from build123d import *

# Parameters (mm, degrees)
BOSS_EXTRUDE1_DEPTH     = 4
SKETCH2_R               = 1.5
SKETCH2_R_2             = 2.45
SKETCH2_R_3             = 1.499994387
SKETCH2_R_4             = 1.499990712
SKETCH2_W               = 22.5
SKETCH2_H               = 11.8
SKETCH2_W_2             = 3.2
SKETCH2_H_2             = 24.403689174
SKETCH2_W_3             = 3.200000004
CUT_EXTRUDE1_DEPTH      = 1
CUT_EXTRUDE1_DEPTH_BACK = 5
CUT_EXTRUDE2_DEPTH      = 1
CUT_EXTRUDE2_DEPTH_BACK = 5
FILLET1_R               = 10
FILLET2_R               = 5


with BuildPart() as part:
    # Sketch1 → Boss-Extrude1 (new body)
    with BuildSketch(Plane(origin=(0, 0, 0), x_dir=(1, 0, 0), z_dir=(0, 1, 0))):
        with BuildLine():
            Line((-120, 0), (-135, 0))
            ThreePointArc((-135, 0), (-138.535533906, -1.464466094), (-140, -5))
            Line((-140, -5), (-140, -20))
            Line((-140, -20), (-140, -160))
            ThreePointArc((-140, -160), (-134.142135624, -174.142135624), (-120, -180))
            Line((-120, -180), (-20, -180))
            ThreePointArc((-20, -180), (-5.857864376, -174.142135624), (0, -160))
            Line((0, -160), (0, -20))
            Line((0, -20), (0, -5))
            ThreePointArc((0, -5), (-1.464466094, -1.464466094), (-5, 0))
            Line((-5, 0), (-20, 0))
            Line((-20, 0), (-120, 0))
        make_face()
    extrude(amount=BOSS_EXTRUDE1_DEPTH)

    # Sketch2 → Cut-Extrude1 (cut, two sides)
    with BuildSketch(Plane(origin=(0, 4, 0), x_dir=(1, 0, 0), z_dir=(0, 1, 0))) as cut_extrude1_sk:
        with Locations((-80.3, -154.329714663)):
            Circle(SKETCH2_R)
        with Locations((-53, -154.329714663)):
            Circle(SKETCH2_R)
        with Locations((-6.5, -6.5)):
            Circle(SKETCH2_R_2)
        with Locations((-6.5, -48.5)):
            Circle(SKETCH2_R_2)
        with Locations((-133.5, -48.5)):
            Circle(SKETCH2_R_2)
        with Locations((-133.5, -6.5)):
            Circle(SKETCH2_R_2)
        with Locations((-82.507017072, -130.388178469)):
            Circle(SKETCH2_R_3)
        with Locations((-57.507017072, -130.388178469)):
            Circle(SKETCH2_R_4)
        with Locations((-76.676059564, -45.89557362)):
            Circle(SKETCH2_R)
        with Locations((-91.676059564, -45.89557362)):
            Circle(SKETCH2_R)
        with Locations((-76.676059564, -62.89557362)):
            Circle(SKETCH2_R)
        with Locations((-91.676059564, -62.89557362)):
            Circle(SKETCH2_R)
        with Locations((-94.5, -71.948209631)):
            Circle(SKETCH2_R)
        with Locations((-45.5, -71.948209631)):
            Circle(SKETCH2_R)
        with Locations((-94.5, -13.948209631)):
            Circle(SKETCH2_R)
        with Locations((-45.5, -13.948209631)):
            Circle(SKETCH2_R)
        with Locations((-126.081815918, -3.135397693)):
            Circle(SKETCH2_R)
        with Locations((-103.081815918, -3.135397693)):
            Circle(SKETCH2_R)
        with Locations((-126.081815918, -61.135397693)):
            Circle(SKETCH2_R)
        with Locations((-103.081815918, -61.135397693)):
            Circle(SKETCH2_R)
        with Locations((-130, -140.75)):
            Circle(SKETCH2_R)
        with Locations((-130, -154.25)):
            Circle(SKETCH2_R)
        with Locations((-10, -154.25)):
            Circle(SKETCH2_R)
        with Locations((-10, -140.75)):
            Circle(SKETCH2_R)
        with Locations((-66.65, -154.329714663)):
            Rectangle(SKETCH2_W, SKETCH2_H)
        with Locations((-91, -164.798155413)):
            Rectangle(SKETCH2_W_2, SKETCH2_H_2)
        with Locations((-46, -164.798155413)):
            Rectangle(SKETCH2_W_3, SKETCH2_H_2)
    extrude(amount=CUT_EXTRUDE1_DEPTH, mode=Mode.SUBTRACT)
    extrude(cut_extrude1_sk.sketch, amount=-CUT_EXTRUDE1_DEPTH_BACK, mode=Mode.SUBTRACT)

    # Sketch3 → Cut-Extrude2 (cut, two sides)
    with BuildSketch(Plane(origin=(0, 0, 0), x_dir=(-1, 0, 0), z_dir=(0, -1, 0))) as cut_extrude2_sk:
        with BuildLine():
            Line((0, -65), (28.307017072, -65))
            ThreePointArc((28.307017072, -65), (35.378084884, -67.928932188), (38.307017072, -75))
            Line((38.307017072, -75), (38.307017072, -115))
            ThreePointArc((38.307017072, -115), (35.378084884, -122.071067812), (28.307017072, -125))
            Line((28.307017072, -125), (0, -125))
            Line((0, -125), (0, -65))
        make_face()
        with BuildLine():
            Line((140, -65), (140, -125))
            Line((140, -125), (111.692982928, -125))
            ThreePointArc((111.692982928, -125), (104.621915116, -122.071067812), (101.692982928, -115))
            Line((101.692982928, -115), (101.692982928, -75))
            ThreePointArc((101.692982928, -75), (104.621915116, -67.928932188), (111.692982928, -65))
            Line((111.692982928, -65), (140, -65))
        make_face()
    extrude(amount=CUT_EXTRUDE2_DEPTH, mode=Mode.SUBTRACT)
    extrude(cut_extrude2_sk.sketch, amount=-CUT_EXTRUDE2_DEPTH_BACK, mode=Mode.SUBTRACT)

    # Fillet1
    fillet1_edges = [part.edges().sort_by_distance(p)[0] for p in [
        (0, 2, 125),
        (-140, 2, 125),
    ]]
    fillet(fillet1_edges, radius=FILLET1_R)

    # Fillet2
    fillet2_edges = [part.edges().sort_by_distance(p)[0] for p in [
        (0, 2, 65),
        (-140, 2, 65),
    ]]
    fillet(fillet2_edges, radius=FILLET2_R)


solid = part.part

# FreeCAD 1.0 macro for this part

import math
import FreeCAD as App
import Part
import Sketcher
from FreeCAD import Vector


def edges_at(feature, points):
    """Names of the edges that pass closest to the given points."""
    edges = feature.Shape.Edges
    near = lambda p: min(range(len(edges)), key=lambda i: edges[i].distToShape(Part.Vertex(*p))[0])
    return sorted({f"Edge{near(p) + 1}" for p in points})


def add_polygon(sketch, points):
    """Adds a closed chain of lines whose ends are joined by coincident constraints."""
    first, n = sketch.GeometryCount, len(points)
    for a, b in zip(points, points[1:] + points[:1]):
        sketch.addGeometry(Part.LineSegment(App.Vector(*a, 0), App.Vector(*b, 0)), False)
    for i in range(n):
        sketch.addConstraint(Sketcher.Constraint("Coincident", first + i, 2, first + (i + 1) % n, 1))

doc = App.newDocument("Part")
body = doc.addObject("PartDesign::Body", "Body")

# Sketch on XZ plane
sketch1 = body.newObject("Sketcher::SketchObject", "Sketch")
sketch1.AttachmentSupport = (doc.getObject("XZ_Plane"), [""])
sketch1.MapMode = "FlatFace"
sketch1.addGeometry(Part.ArcOfCircle(Part.Circle(Vector(-135, 5, 0), Vector(0, 0, 1), 5), math.radians(180), math.radians(270)), False)
sketch1.addGeometry(Part.LineSegment(Vector(-140, 5, 0), Vector(-140, 160, 0)), False)
sketch1.addGeometry(Part.ArcOfCircle(Part.Circle(Vector(-120, 160, 0), Vector(0, 0, 1), 20), math.radians(90), math.radians(180)), False)
sketch1.addGeometry(Part.LineSegment(Vector(-120, 180, 0), Vector(-20, 180, 0)), False)
sketch1.addGeometry(Part.ArcOfCircle(Part.Circle(Vector(-20, 160, 0), Vector(0, 0, 1), 20), math.radians(0), math.radians(90)), False)
sketch1.addGeometry(Part.LineSegment(Vector(0, 160, 0), Vector(0, 5, 0)), False)
sketch1.addGeometry(Part.ArcOfCircle(Part.Circle(Vector(-5, 5, 0), Vector(0, 0, 1), 5), math.radians(-90), math.radians(0)), False)
sketch1.addGeometry(Part.LineSegment(Vector(-5, 0, 0), Vector(-135, 0, 0)), False)
sketch1.addConstraint(Sketcher.Constraint("Tangent", 0, 1, 1, 1))
sketch1.addConstraint(Sketcher.Constraint("Tangent", 1, 2, 2, 2))
sketch1.addConstraint(Sketcher.Constraint("Tangent", 2, 1, 3, 1))
sketch1.addConstraint(Sketcher.Constraint("Tangent", 3, 2, 4, 2))
sketch1.addConstraint(Sketcher.Constraint("Tangent", 4, 1, 5, 1))
sketch1.addConstraint(Sketcher.Constraint("Tangent", 5, 2, 6, 2))
sketch1.addConstraint(Sketcher.Constraint("Tangent", 6, 1, 7, 1))
sketch1.addConstraint(Sketcher.Constraint("Tangent", 7, 2, 0, 2))
sketch1.addConstraint(Sketcher.Constraint("Vertical", 1))
sketch1.addConstraint(Sketcher.Constraint("Horizontal", 3))
sketch1.addConstraint(Sketcher.Constraint("Vertical", 5))
sketch1.addConstraint(Sketcher.Constraint("Horizontal", 7))
sketch1.addConstraint(Sketcher.Constraint("Equal", 2, 4))
sketch1.addConstraint(Sketcher.Constraint("Equal", 0, 6))
sketch1.addConstraint(Sketcher.Constraint("PointOnObject", 4, 1, -2))
sketch1.addConstraint(Sketcher.Constraint("PointOnObject", 6, 1, -1))
sketch1.addConstraint(Sketcher.Constraint("Radius", 0, 5.0))
sketch1.addConstraint(Sketcher.Constraint("Radius", 2, 20.0))
sketch1.addConstraint(Sketcher.Constraint("DistanceX", 3, 1, 3, 2, 100.0))
sketch1.addConstraint(Sketcher.Constraint("DistanceY", 1, 1, 1, 2, 155.0))
pad1 = body.newObject("PartDesign::Pad", "Pad")
pad1.Profile = sketch1
pad1.Length = 4
pad1.Reversed = True

# Sketch on XZ plane
sketch2 = body.newObject("Sketcher::SketchObject", "Sketch001")
sketch2.AttachmentSupport = (doc.getObject("XZ_Plane"), [""])
sketch2.MapMode = "FlatFace"
sketch2.AttachmentOffset = App.Placement(Vector(0, 0, -4), App.Rotation())
sketch2.addGeometry(Part.Circle(Vector(-80.3, 154.3, 0), Vector(0, 0, 1), 1.5), False)  # 0
sketch2.addGeometry(Part.Circle(Vector(-53, 154.3, 0), Vector(0, 0, 1), 1.5), False)  # 1
sketch2.addGeometry(Part.Circle(Vector(-6.5, 6.5, 0), Vector(0, 0, 1), 2.5), False)  # 2
sketch2.addGeometry(Part.Circle(Vector(-6.5, 48.5, 0), Vector(0, 0, 1), 2.5), False)  # 3
sketch2.addGeometry(Part.Circle(Vector(-133.5, 48.5, 0), Vector(0, 0, 1), 2.5), False)  # 4
sketch2.addGeometry(Part.Circle(Vector(-133.5, 6.5, 0), Vector(0, 0, 1), 2.5), False)  # 5
sketch2.addGeometry(Part.Circle(Vector(-82.5, 130.4, 0), Vector(0, 0, 1), 1.5), False)  # 6
sketch2.addGeometry(Part.Circle(Vector(-57.5, 130.4, 0), Vector(0, 0, 1), 1.5), False)  # 7
sketch2.addGeometry(Part.Circle(Vector(-76.7, 45.9, 0), Vector(0, 0, 1), 1.5), False)  # 8
sketch2.addGeometry(Part.Circle(Vector(-91.7, 45.9, 0), Vector(0, 0, 1), 1.5), False)  # 9
sketch2.addGeometry(Part.Circle(Vector(-76.7, 62.9, 0), Vector(0, 0, 1), 1.5), False)  # 10
sketch2.addGeometry(Part.Circle(Vector(-91.7, 62.9, 0), Vector(0, 0, 1), 1.5), False)  # 11
sketch2.addGeometry(Part.Circle(Vector(-94.5, 71.9, 0), Vector(0, 0, 1), 1.5), False)  # 12
sketch2.addGeometry(Part.Circle(Vector(-45.5, 71.9, 0), Vector(0, 0, 1), 1.5), False)  # 13
sketch2.addGeometry(Part.Circle(Vector(-94.5, 13.9, 0), Vector(0, 0, 1), 1.5), False)  # 14
sketch2.addGeometry(Part.Circle(Vector(-45.5, 13.9, 0), Vector(0, 0, 1), 1.5), False)  # 15
sketch2.addGeometry(Part.Circle(Vector(-126.1, 3.1, 0), Vector(0, 0, 1), 1.5), False)  # 16
sketch2.addGeometry(Part.Circle(Vector(-103.1, 3.1, 0), Vector(0, 0, 1), 1.5), False)  # 17
sketch2.addGeometry(Part.Circle(Vector(-126.1, 61.1, 0), Vector(0, 0, 1), 1.5), False)  # 18
sketch2.addGeometry(Part.Circle(Vector(-103.1, 61.1, 0), Vector(0, 0, 1), 1.5), False)  # 19
sketch2.addGeometry(Part.Circle(Vector(-130, 140.8, 0), Vector(0, 0, 1), 1.5), False)  # 20
sketch2.addGeometry(Part.Circle(Vector(-130, 154.2, 0), Vector(0, 0, 1), 1.5), False)  # 21
sketch2.addGeometry(Part.Circle(Vector(-10, 154.2, 0), Vector(0, 0, 1), 1.5), False)  # 22
sketch2.addGeometry(Part.Circle(Vector(-10, 140.8, 0), Vector(0, 0, 1), 1.5), False)  # 23
add_polygon(sketch2, [(-77.9, 148.4), (-77.9, 160.2), (-55.4, 160.2), (-55.4, 148.4)])  # lines 24-27
add_polygon(sketch2, [(-92.6, 152.6), (-92.6, 177), (-89.4, 177), (-89.4, 152.6)])  # lines 28-31
add_polygon(sketch2, [(-47.6, 152.6), (-47.6, 177), (-44.4, 177), (-44.4, 152.6)])  # lines 32-35
sketch2.addConstraint(Sketcher.Constraint("Vertical", 24))
sketch2.addConstraint(Sketcher.Constraint("Horizontal", 25))
sketch2.addConstraint(Sketcher.Constraint("Vertical", 26))
sketch2.addConstraint(Sketcher.Constraint("Horizontal", 27))
sketch2.addConstraint(Sketcher.Constraint("Vertical", 28))
sketch2.addConstraint(Sketcher.Constraint("Horizontal", 29))
sketch2.addConstraint(Sketcher.Constraint("Vertical", 30))
sketch2.addConstraint(Sketcher.Constraint("Horizontal", 31))
sketch2.addConstraint(Sketcher.Constraint("Vertical", 32))
sketch2.addConstraint(Sketcher.Constraint("Horizontal", 33))
sketch2.addConstraint(Sketcher.Constraint("Vertical", 34))
sketch2.addConstraint(Sketcher.Constraint("Horizontal", 35))
sketch2.addConstraint(Sketcher.Constraint("Equal", 0, 1))
sketch2.addConstraint(Sketcher.Constraint("Equal", 2, 3))
sketch2.addConstraint(Sketcher.Constraint("Equal", 3, 4))
sketch2.addConstraint(Sketcher.Constraint("Equal", 4, 5))
sketch2.addConstraint(Sketcher.Constraint("Equal", 1, 8))
sketch2.addConstraint(Sketcher.Constraint("Equal", 8, 9))
sketch2.addConstraint(Sketcher.Constraint("Equal", 9, 10))
sketch2.addConstraint(Sketcher.Constraint("Equal", 10, 11))
sketch2.addConstraint(Sketcher.Constraint("Equal", 11, 12))
sketch2.addConstraint(Sketcher.Constraint("Equal", 12, 13))
sketch2.addConstraint(Sketcher.Constraint("Equal", 13, 14))
sketch2.addConstraint(Sketcher.Constraint("Equal", 14, 15))
sketch2.addConstraint(Sketcher.Constraint("Equal", 15, 16))
sketch2.addConstraint(Sketcher.Constraint("Equal", 16, 17))
sketch2.addConstraint(Sketcher.Constraint("Equal", 17, 18))
sketch2.addConstraint(Sketcher.Constraint("Equal", 18, 19))
sketch2.addConstraint(Sketcher.Constraint("Equal", 19, 20))
sketch2.addConstraint(Sketcher.Constraint("Equal", 20, 21))
sketch2.addConstraint(Sketcher.Constraint("Equal", 21, 22))
sketch2.addConstraint(Sketcher.Constraint("Equal", 22, 23))
sketch2.addConstraint(Sketcher.Constraint("Horizontal", 0, 3, 1, 3))
sketch2.addConstraint(Sketcher.Constraint("Horizontal", 3, 3, 4, 3))
sketch2.addConstraint(Sketcher.Constraint("Horizontal", 2, 3, 5, 3))
sketch2.addConstraint(Sketcher.Constraint("Horizontal", 6, 3, 7, 3))
sketch2.addConstraint(Sketcher.Constraint("Horizontal", 8, 3, 9, 3))
sketch2.addConstraint(Sketcher.Constraint("Horizontal", 10, 3, 11, 3))
sketch2.addConstraint(Sketcher.Constraint("Horizontal", 12, 3, 13, 3))
sketch2.addConstraint(Sketcher.Constraint("Horizontal", 14, 3, 15, 3))
sketch2.addConstraint(Sketcher.Constraint("Horizontal", 16, 3, 17, 3))
sketch2.addConstraint(Sketcher.Constraint("Horizontal", 18, 3, 19, 3))
sketch2.addConstraint(Sketcher.Constraint("Horizontal", 21, 3, 22, 3))
sketch2.addConstraint(Sketcher.Constraint("Horizontal", 20, 3, 23, 3))
sketch2.addConstraint(Sketcher.Constraint("Horizontal", 29, 2, 32, 2))
sketch2.addConstraint(Sketcher.Constraint("Horizontal", 31, 2, 34, 2))
sketch2.addConstraint(Sketcher.Constraint("Vertical", 2, 3, 3, 3))
sketch2.addConstraint(Sketcher.Constraint("Vertical", 4, 3, 5, 3))
sketch2.addConstraint(Sketcher.Constraint("Vertical", 8, 3, 10, 3))
sketch2.addConstraint(Sketcher.Constraint("Vertical", 9, 3, 11, 3))
sketch2.addConstraint(Sketcher.Constraint("Vertical", 12, 3, 14, 3))
sketch2.addConstraint(Sketcher.Constraint("Vertical", 13, 3, 15, 3))
sketch2.addConstraint(Sketcher.Constraint("Vertical", 16, 3, 18, 3))
sketch2.addConstraint(Sketcher.Constraint("Vertical", 17, 3, 19, 3))
sketch2.addConstraint(Sketcher.Constraint("Vertical", 20, 3, 21, 3))
sketch2.addConstraint(Sketcher.Constraint("Vertical", 22, 3, 23, 3))
sketch2.addConstraint(Sketcher.Constraint("Equal", 31, 33))
sketch2.addConstraint(Sketcher.Constraint("Diameter", 0, 3.0))
sketch2.addConstraint(Sketcher.Constraint("Diameter", 2, 4.9))
sketch2.addConstraint(Sketcher.Constraint("DistanceX", 25, 1, 25, 2, 22.5))
sketch2.addConstraint(Sketcher.Constraint("DistanceX", 29, 1, 29, 2, 3.2))
sketch2.addConstraint(Sketcher.Constraint("DistanceY", 24, 1, 24, 2, 11.8))
sketch2.addConstraint(Sketcher.Constraint("DistanceX", 1, 3, -1, 1, 53.0))
sketch2.addConstraint(Sketcher.Constraint("DistanceX", 20, 3, -1, 1, 130.0))
sketch2.addConstraint(Sketcher.Constraint("DistanceX", 22, 3, -1, 1, 10.0))
sketch2.addConstraint(Sketcher.Constraint("DistanceY", -1, 1, 28, 2, 177.0))
sketch2.addConstraint(Sketcher.Constraint("DistanceY", 2, 3, 3, 3, 42.0))
sketch2.addConstraint(Sketcher.Constraint("DistanceX", 4, 3, 3, 3, 127.0))
sketch2.addConstraint(Sketcher.Constraint("DistanceX", 6, 3, 7, 3, 25.0))
sketch2.addConstraint(Sketcher.Constraint("DistanceX", 9, 3, 8, 3, 15.0))
sketch2.addConstraint(Sketcher.Constraint("DistanceY", 8, 3, 10, 3, 17.0))
sketch2.addConstraint(Sketcher.Constraint("DistanceX", 4, 3, 12, 3, 39.0))
sketch2.addConstraint(Sketcher.Constraint("DistanceX", 13, 3, 3, 3, 39.0))
sketch2.addConstraint(Sketcher.Constraint("DistanceX", 16, 3, 17, 3, 23.0))
sketch2.addConstraint(Sketcher.Constraint("DistanceX", 29, 2, 25, 2, 34.0))
sketch2.addConstraint(Sketcher.Constraint("DistanceX", 25, 2, 33, 2, 11.0))
sketch2.addConstraint(Sketcher.Constraint("DistanceX", 0, 3, -1, 1, 80.3))
sketch2.addConstraint(Sketcher.Constraint("DistanceX", 2, 3, -1, 1, 6.5))
sketch2.addConstraint(Sketcher.Constraint("DistanceY", -1, 1, 2, 3, 6.5))
sketch2.addConstraint(Sketcher.Constraint("DistanceX", 24, 2, -1, 1, 77.9))
sketch2.addConstraint(Sketcher.Constraint("DistanceY", 20, 3, 21, 3, 13.5))
sketch2.addConstraint(Sketcher.Constraint("DistanceY", 0, 3, 24, 2, 5.9))
sketch2.addConstraint(Sketcher.Constraint("Diameter", 6, 2.999989))
sketch2.addConstraint(Sketcher.Constraint("Diameter", 7, 2.999981))
sketch2.addConstraint(Sketcher.Constraint("DistanceY", -1, 1, 20, 3, 140.75))
sketch2.addConstraint(Sketcher.Constraint("DistanceY", 28, 1, 28, 2, 24.403689))
sketch2.addConstraint(Sketcher.Constraint("DistanceY", -1, 1, 6, 3, 130.388178))
sketch2.addConstraint(Sketcher.Constraint("DistanceX", 8, 3, -1, 1, 76.67606))
sketch2.addConstraint(Sketcher.Constraint("DistanceY", -1, 1, 12, 3, 71.94821))
sketch2.addConstraint(Sketcher.Constraint("DistanceY", -1, 1, 14, 3, 13.94821))
sketch2.addConstraint(Sketcher.Constraint("DistanceY", 16, 3, 14, 3, 10.812812))
sketch2.addConstraint(Sketcher.Constraint("DistanceY", 18, 3, 12, 3, 10.812812))
sketch2.addConstraint(Sketcher.Constraint("DistanceY", -1, 1, 0, 3, 154.329715))
sketch2.addConstraint(Sketcher.Constraint("DistanceX", 6, 3, -1, 1, 82.507017))
sketch2.addConstraint(Sketcher.Constraint("DistanceY", -1, 1, 8, 3, 45.895574))
sketch2.addConstraint(Sketcher.Constraint("DistanceX", 16, 3, -1, 1, 126.081816))
pocket1 = body.newObject("PartDesign::Pocket", "Pocket")
pocket1.Profile = sketch2
pocket1.Type = "ThroughAll"
pocket1.Midplane = True

# Sketch on XZ plane
sketch3 = body.newObject("Sketcher::SketchObject", "Sketch002")
sketch3.AttachmentSupport = (doc.getObject("XZ_Plane"), [""])
sketch3.MapMode = "FlatFace"
sketch3.addGeometry(Part.LineSegment(Vector(-28, 65, 0), Vector(0, 65, 0)), False)
sketch3.addGeometry(Part.LineSegment(Vector(0, 65, 0), Vector(0, 125, 0)), False)
sketch3.addGeometry(Part.LineSegment(Vector(0, 125, 0), Vector(-28, 125, 0)), False)
sketch3.addGeometry(Part.ArcOfCircle(Part.Circle(Vector(-28, 115, 0), Vector(0, 0, 1), 10), math.radians(90), math.radians(180)), False)
sketch3.addGeometry(Part.LineSegment(Vector(-38, 115, 0), Vector(-38, 75, 0)), False)
sketch3.addGeometry(Part.ArcOfCircle(Part.Circle(Vector(-28, 75, 0), Vector(0, 0, 1), 10), math.radians(180), math.radians(270)), False)
sketch3.addGeometry(Part.LineSegment(Vector(-140, 125, 0), Vector(-140, 65, 0)), False)
sketch3.addGeometry(Part.LineSegment(Vector(-140, 65, 0), Vector(-112, 65, 0)), False)
sketch3.addGeometry(Part.ArcOfCircle(Part.Circle(Vector(-112, 75, 0), Vector(0, 0, 1), 10), math.radians(-90), math.radians(0)), False)
sketch3.addGeometry(Part.LineSegment(Vector(-102, 75, 0), Vector(-102, 115, 0)), False)
sketch3.addGeometry(Part.ArcOfCircle(Part.Circle(Vector(-112, 115, 0), Vector(0, 0, 1), 10), math.radians(0), math.radians(90)), False)
sketch3.addGeometry(Part.LineSegment(Vector(-112, 125, 0), Vector(-140, 125, 0)), False)
sketch3.addConstraint(Sketcher.Constraint("Coincident", 0, 2, 1, 1))
sketch3.addConstraint(Sketcher.Constraint("Coincident", 1, 2, 2, 1))
sketch3.addConstraint(Sketcher.Constraint("Tangent", 2, 2, 3, 1))
sketch3.addConstraint(Sketcher.Constraint("Tangent", 3, 2, 4, 1))
sketch3.addConstraint(Sketcher.Constraint("Tangent", 4, 2, 5, 1))
sketch3.addConstraint(Sketcher.Constraint("Tangent", 5, 2, 0, 1))
sketch3.addConstraint(Sketcher.Constraint("Coincident", 6, 2, 7, 1))
sketch3.addConstraint(Sketcher.Constraint("Tangent", 7, 2, 8, 1))
sketch3.addConstraint(Sketcher.Constraint("Tangent", 8, 2, 9, 1))
sketch3.addConstraint(Sketcher.Constraint("Tangent", 9, 2, 10, 1))
sketch3.addConstraint(Sketcher.Constraint("Tangent", 10, 2, 11, 1))
sketch3.addConstraint(Sketcher.Constraint("Coincident", 11, 2, 6, 1))
sketch3.addConstraint(Sketcher.Constraint("Horizontal", 0))
sketch3.addConstraint(Sketcher.Constraint("Vertical", 1))
sketch3.addConstraint(Sketcher.Constraint("Horizontal", 2))
sketch3.addConstraint(Sketcher.Constraint("Vertical", 4))
sketch3.addConstraint(Sketcher.Constraint("Vertical", 6))
sketch3.addConstraint(Sketcher.Constraint("Horizontal", 7))
sketch3.addConstraint(Sketcher.Constraint("Vertical", 9))
sketch3.addConstraint(Sketcher.Constraint("Horizontal", 11))
sketch3.addConstraint(Sketcher.Constraint("Equal", 3, 5))
sketch3.addConstraint(Sketcher.Constraint("Equal", 5, 8))
sketch3.addConstraint(Sketcher.Constraint("Equal", 8, 10))
sketch3.addConstraint(Sketcher.Constraint("PointOnObject", 0, 2, -2))
sketch3.addConstraint(Sketcher.Constraint("Horizontal", 5, 3, 8, 3))
sketch3.addConstraint(Sketcher.Constraint("Horizontal", 3, 3, 10, 3))
sketch3.addConstraint(Sketcher.Constraint("Equal", 2, 7))
sketch3.addConstraint(Sketcher.Constraint("Radius", 3, 10.0))
sketch3.addConstraint(Sketcher.Constraint("DistanceY", 1, 1, 1, 2, 60.0))
sketch3.addConstraint(Sketcher.Constraint("DistanceY", -1, 1, 3, 3, 115.0))
sketch3.addConstraint(Sketcher.Constraint("DistanceX", 6, 2, -1, 1, 140.0))
sketch3.addConstraint(Sketcher.Constraint("DistanceX", 0, 1, 0, 2, 28.307017))
pocket2 = body.newObject("PartDesign::Pocket", "Pocket001")
pocket2.Profile = sketch3
pocket2.Type = "ThroughAll"
pocket2.Midplane = True
doc.recompute()

fillet = body.newObject("PartDesign::Fillet", "Fillet")
fillet.Base = (pocket2, edges_at(pocket2, [(0, 2, 125), (-140, 2, 125)]))
fillet.Radius = 10
doc.recompute()

fillet2 = body.newObject("PartDesign::Fillet", "Fillet001")
fillet2.Base = (fillet, edges_at(fillet, [(0, 2, 65), (-140, 2, 65)]))
fillet2.Radius = 5

doc.recompute()
